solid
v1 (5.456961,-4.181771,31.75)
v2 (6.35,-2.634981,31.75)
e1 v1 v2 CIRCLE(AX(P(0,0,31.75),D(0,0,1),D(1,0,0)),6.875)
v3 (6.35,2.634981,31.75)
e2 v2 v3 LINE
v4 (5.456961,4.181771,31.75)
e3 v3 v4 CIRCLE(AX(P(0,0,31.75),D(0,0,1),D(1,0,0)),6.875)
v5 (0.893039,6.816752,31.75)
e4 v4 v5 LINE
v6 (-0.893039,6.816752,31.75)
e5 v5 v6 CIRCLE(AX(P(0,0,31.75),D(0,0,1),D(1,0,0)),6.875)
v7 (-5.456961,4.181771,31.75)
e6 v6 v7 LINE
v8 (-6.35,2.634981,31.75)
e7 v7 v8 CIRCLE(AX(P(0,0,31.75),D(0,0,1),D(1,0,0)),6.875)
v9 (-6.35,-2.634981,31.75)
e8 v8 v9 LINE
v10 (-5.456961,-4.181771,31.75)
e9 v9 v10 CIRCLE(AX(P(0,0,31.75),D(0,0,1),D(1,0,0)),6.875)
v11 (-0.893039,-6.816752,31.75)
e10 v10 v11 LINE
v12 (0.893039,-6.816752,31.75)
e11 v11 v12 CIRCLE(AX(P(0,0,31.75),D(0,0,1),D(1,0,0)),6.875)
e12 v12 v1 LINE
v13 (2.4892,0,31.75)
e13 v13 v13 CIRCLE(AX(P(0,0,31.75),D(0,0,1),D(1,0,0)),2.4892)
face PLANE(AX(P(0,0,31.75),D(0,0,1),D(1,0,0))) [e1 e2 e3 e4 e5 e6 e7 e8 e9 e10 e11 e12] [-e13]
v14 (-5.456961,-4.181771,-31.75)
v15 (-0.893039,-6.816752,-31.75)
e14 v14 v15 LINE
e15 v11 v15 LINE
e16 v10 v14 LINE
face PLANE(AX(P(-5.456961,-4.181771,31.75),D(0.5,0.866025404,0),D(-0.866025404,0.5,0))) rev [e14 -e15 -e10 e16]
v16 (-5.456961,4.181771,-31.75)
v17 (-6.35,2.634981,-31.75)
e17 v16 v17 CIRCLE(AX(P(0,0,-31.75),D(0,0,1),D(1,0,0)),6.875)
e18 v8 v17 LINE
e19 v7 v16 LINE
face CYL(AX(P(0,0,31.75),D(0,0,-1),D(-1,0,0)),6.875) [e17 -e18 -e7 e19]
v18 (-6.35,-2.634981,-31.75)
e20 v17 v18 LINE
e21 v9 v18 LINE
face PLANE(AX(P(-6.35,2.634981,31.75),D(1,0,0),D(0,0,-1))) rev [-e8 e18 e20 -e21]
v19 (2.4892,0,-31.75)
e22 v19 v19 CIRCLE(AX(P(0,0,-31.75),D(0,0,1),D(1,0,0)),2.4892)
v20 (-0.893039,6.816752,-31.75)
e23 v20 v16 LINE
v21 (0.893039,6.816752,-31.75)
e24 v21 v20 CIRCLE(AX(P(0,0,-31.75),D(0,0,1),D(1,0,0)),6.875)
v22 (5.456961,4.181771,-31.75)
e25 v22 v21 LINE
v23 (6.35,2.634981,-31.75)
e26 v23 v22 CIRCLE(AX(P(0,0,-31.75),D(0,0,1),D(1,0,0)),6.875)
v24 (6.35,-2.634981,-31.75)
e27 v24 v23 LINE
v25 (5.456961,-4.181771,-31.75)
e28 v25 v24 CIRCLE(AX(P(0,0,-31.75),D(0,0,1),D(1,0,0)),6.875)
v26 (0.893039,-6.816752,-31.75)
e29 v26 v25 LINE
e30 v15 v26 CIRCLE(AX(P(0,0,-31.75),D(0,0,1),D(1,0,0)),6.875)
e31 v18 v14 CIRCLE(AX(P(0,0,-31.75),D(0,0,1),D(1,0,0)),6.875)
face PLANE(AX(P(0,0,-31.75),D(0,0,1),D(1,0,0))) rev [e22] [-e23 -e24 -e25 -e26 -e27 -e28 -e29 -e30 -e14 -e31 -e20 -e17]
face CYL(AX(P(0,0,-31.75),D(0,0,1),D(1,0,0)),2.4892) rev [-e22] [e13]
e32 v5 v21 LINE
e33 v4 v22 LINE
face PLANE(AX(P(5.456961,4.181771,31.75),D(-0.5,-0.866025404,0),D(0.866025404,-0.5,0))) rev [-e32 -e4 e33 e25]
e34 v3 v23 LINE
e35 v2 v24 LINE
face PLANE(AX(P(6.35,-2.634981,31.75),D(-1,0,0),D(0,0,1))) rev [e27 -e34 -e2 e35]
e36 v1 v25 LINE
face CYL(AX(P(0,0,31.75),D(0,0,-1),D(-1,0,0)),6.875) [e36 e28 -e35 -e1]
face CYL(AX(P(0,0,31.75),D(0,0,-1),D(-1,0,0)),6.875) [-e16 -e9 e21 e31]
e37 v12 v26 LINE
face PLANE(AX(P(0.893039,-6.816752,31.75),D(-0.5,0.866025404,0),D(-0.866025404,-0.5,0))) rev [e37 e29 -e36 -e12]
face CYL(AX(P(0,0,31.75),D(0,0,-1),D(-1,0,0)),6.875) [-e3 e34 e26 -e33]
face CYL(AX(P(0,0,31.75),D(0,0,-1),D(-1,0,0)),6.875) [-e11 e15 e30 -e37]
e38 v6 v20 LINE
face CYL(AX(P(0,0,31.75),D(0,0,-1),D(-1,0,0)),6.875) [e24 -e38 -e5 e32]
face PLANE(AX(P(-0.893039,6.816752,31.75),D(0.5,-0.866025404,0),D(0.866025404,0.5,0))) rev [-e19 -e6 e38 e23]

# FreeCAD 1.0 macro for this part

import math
import FreeCAD as App
import Part
import Sketcher
from FreeCAD import Vector
Q = App.Units.Quantity

doc = App.newDocument("Part")
params = doc.addObject("Spreadsheet::Sheet", "Params")
for row, (alias, value) in enumerate([
    ("pad1_length", "2.5 in"),
    ("sketch2_diameter", "0.196 in"),
], start=1):
    params.set(f"A{row}", alias)
    params.set(f"B{row}", "=" + value)
    params.setAlias(f"B{row}", alias)

body = doc.addObject("PartDesign::Body", "Body")

# Sketch on XY plane
sketch1 = body.newObject("Sketcher::SketchObject", "Sketch")
sketch1.AttachmentSupport = (doc.getObject("XY_Plane"), [""])
sketch1.MapMode = "FlatFace"
sketch1.addGeometry(Part.LineSegment(Vector(-0.9, 6.8, 0), Vector(-5.5, 4.2, 0)), False)
sketch1.addGeometry(Part.ArcOfCircle(Part.Circle(Vector(0, 0, 0), Vector(0, 0, 1), 6.9), math.radians(142.54), math.radians(157.46)), False)
sketch1.addGeometry(Part.LineSegment(Vector(-6.3, 2.6, 0), Vector(-6.3, -2.6, 0)), False)
sketch1.addGeometry(Part.ArcOfCircle(Part.Circle(Vector(0, 0, 0), Vector(0, 0, 1), 6.9), math.radians(-157.46), math.radians(-142.54)), False)
sketch1.addGeometry(Part.LineSegment(Vector(-5.5, -4.2, 0), Vector(-0.9, -6.8, 0)), False)
sketch1.addGeometry(Part.ArcOfCircle(Part.Circle(Vector(0, 0, 0), Vector(0, 0, 1), 6.9), math.radians(-97.46), math.radians(-82.54)), False)
sketch1.addGeometry(Part.LineSegment(Vector(0.9, -6.8, 0), Vector(5.5, -4.2, 0)), False)
sketch1.addGeometry(Part.ArcOfCircle(Part.Circle(Vector(0, 0, 0), Vector(0, 0, 1), 6.9), math.radians(-37.46), math.radians(-22.54)), False)
sketch1.addGeometry(Part.LineSegment(Vector(6.3, -2.6, 0), Vector(6.3, 2.6, 0)), False)
sketch1.addGeometry(Part.ArcOfCircle(Part.Circle(Vector(0, 0, 0), Vector(0, 0, 1), 6.9), math.radians(22.54), math.radians(37.46)), False)
sketch1.addGeometry(Part.LineSegment(Vector(5.5, 4.2, 0), Vector(0.9, 6.8, 0)), False)
sketch1.addGeometry(Part.ArcOfCircle(Part.Circle(Vector(0, 0, 0), Vector(0, 0, 1), 6.9), math.radians(82.54), math.radians(97.46)), False)
sketch1.addConstraint(Sketcher.Constraint("Coincident", 0, 2, 1, 1))
sketch1.addConstraint(Sketcher.Constraint("Coincident", 1, 2, 2, 1))
sketch1.addConstraint(Sketcher.Constraint("Coincident", 2, 2, 3, 1))
sketch1.addConstraint(Sketcher.Constraint("Coincident", 3, 2, 4, 1))
sketch1.addConstraint(Sketcher.Constraint("Coincident", 4, 2, 5, 1))
sketch1.addConstraint(Sketcher.Constraint("Coincident", 5, 2, 6, 1))
sketch1.addConstraint(Sketcher.Constraint("Coincident", 6, 2, 7, 1))
sketch1.addConstraint(Sketcher.Constraint("Coincident", 7, 2, 8, 1))
sketch1.addConstraint(Sketcher.Constraint("Coincident", 8, 2, 9, 1))
sketch1.addConstraint(Sketcher.Constraint("Coincident", 9, 2, 10, 1))
sketch1.addConstraint(Sketcher.Constraint("Coincident", 10, 2, 11, 1))
sketch1.addConstraint(Sketcher.Constraint("Coincident", 11, 2, 0, 1))
sketch1.addConstraint(Sketcher.Constraint("Vertical", 2))
sketch1.addConstraint(Sketcher.Constraint("Vertical", 8))
sketch1.addConstraint(Sketcher.Constraint("Coincident", 1, 3, -1, 1))
sketch1.addConstraint(Sketcher.Constraint("Coincident", 3, 3, -1, 1))
sketch1.addConstraint(Sketcher.Constraint("Coincident", 5, 3, -1, 1))
sketch1.addConstraint(Sketcher.Constraint("Coincident", 7, 3, -1, 1))
sketch1.addConstraint(Sketcher.Constraint("Coincident", 9, 3, -1, 1))
sketch1.addConstraint(Sketcher.Constraint("Coincident", 11, 3, -1, 1))
sketch1.addConstraint(Sketcher.Constraint("Equal", 1, 3))
sketch1.addConstraint(Sketcher.Constraint("Equal", 3, 5))
sketch1.addConstraint(Sketcher.Constraint("Equal", 5, 7))
sketch1.addConstraint(Sketcher.Constraint("Equal", 7, 9))
sketch1.addConstraint(Sketcher.Constraint("Equal", 9, 11))
sketch1.addConstraint(Sketcher.Constraint("Parallel", 0, 6))
sketch1.addConstraint(Sketcher.Constraint("Parallel", 4, 10))
sketch1.addConstraint(Sketcher.Constraint("Horizontal", 4, 2, 5, 2))
sketch1.addConstraint(Sketcher.Constraint("Horizontal", 3, 2, 6, 2))
sketch1.addConstraint(Sketcher.Constraint("Horizontal", 2, 2, 7, 2))
sketch1.addConstraint(Sketcher.Constraint("Horizontal", 0, 2, 9, 2))
sketch1.addConstraint(Sketcher.Constraint("Vertical", 0, 2, 3, 2))
sketch1.addConstraint(Sketcher.Constraint("Angle", 0, Q("-150 deg")))
sketch1.addConstraint(Sketcher.Constraint("DistanceX", 1, 2, -1, 1, Q("0.25 in")))
sketch1.addConstraint(Sketcher.Constraint("Radius", 1, Q("6.875 mm")))
sketch1.addConstraint(Sketcher.Constraint("DistanceX", 3, 2, 5, 2, Q("0.25 in")))
pad1 = body.newObject("PartDesign::Pad", "Pad")
pad1.Profile = sketch1
pad1.setExpression("Length", "Params.pad1_length")
pad1.Midplane = True

# Sketch on XY plane
sketch2 = body.newObject("Sketcher::SketchObject", "Sketch001")
sketch2.AttachmentSupport = (doc.getObject("XY_Plane"), [""])
sketch2.MapMode = "FlatFace"
sketch2.AttachmentOffset = App.Placement(Vector(0, 0, 1.25 * 25.4), App.Rotation())
sketch2.addGeometry(Part.Circle(Vector(0, 0, 0), Vector(0, 0, 1), 2.5), False)
sketch2.addConstraint(Sketcher.Constraint("Coincident", 0, 3, -1, 1))
sketch2.addConstraint(Sketcher.Constraint("Diameter", 0, Q("0.196 in")))
sketch2.setExpression("Constraints[1]", "Params.sketch2_diameter")
pocket1 = body.newObject("PartDesign::Pocket", "Pocket")
pocket1.Profile = sketch2
pocket1.Type = "ThroughAll"

doc.recompute()
